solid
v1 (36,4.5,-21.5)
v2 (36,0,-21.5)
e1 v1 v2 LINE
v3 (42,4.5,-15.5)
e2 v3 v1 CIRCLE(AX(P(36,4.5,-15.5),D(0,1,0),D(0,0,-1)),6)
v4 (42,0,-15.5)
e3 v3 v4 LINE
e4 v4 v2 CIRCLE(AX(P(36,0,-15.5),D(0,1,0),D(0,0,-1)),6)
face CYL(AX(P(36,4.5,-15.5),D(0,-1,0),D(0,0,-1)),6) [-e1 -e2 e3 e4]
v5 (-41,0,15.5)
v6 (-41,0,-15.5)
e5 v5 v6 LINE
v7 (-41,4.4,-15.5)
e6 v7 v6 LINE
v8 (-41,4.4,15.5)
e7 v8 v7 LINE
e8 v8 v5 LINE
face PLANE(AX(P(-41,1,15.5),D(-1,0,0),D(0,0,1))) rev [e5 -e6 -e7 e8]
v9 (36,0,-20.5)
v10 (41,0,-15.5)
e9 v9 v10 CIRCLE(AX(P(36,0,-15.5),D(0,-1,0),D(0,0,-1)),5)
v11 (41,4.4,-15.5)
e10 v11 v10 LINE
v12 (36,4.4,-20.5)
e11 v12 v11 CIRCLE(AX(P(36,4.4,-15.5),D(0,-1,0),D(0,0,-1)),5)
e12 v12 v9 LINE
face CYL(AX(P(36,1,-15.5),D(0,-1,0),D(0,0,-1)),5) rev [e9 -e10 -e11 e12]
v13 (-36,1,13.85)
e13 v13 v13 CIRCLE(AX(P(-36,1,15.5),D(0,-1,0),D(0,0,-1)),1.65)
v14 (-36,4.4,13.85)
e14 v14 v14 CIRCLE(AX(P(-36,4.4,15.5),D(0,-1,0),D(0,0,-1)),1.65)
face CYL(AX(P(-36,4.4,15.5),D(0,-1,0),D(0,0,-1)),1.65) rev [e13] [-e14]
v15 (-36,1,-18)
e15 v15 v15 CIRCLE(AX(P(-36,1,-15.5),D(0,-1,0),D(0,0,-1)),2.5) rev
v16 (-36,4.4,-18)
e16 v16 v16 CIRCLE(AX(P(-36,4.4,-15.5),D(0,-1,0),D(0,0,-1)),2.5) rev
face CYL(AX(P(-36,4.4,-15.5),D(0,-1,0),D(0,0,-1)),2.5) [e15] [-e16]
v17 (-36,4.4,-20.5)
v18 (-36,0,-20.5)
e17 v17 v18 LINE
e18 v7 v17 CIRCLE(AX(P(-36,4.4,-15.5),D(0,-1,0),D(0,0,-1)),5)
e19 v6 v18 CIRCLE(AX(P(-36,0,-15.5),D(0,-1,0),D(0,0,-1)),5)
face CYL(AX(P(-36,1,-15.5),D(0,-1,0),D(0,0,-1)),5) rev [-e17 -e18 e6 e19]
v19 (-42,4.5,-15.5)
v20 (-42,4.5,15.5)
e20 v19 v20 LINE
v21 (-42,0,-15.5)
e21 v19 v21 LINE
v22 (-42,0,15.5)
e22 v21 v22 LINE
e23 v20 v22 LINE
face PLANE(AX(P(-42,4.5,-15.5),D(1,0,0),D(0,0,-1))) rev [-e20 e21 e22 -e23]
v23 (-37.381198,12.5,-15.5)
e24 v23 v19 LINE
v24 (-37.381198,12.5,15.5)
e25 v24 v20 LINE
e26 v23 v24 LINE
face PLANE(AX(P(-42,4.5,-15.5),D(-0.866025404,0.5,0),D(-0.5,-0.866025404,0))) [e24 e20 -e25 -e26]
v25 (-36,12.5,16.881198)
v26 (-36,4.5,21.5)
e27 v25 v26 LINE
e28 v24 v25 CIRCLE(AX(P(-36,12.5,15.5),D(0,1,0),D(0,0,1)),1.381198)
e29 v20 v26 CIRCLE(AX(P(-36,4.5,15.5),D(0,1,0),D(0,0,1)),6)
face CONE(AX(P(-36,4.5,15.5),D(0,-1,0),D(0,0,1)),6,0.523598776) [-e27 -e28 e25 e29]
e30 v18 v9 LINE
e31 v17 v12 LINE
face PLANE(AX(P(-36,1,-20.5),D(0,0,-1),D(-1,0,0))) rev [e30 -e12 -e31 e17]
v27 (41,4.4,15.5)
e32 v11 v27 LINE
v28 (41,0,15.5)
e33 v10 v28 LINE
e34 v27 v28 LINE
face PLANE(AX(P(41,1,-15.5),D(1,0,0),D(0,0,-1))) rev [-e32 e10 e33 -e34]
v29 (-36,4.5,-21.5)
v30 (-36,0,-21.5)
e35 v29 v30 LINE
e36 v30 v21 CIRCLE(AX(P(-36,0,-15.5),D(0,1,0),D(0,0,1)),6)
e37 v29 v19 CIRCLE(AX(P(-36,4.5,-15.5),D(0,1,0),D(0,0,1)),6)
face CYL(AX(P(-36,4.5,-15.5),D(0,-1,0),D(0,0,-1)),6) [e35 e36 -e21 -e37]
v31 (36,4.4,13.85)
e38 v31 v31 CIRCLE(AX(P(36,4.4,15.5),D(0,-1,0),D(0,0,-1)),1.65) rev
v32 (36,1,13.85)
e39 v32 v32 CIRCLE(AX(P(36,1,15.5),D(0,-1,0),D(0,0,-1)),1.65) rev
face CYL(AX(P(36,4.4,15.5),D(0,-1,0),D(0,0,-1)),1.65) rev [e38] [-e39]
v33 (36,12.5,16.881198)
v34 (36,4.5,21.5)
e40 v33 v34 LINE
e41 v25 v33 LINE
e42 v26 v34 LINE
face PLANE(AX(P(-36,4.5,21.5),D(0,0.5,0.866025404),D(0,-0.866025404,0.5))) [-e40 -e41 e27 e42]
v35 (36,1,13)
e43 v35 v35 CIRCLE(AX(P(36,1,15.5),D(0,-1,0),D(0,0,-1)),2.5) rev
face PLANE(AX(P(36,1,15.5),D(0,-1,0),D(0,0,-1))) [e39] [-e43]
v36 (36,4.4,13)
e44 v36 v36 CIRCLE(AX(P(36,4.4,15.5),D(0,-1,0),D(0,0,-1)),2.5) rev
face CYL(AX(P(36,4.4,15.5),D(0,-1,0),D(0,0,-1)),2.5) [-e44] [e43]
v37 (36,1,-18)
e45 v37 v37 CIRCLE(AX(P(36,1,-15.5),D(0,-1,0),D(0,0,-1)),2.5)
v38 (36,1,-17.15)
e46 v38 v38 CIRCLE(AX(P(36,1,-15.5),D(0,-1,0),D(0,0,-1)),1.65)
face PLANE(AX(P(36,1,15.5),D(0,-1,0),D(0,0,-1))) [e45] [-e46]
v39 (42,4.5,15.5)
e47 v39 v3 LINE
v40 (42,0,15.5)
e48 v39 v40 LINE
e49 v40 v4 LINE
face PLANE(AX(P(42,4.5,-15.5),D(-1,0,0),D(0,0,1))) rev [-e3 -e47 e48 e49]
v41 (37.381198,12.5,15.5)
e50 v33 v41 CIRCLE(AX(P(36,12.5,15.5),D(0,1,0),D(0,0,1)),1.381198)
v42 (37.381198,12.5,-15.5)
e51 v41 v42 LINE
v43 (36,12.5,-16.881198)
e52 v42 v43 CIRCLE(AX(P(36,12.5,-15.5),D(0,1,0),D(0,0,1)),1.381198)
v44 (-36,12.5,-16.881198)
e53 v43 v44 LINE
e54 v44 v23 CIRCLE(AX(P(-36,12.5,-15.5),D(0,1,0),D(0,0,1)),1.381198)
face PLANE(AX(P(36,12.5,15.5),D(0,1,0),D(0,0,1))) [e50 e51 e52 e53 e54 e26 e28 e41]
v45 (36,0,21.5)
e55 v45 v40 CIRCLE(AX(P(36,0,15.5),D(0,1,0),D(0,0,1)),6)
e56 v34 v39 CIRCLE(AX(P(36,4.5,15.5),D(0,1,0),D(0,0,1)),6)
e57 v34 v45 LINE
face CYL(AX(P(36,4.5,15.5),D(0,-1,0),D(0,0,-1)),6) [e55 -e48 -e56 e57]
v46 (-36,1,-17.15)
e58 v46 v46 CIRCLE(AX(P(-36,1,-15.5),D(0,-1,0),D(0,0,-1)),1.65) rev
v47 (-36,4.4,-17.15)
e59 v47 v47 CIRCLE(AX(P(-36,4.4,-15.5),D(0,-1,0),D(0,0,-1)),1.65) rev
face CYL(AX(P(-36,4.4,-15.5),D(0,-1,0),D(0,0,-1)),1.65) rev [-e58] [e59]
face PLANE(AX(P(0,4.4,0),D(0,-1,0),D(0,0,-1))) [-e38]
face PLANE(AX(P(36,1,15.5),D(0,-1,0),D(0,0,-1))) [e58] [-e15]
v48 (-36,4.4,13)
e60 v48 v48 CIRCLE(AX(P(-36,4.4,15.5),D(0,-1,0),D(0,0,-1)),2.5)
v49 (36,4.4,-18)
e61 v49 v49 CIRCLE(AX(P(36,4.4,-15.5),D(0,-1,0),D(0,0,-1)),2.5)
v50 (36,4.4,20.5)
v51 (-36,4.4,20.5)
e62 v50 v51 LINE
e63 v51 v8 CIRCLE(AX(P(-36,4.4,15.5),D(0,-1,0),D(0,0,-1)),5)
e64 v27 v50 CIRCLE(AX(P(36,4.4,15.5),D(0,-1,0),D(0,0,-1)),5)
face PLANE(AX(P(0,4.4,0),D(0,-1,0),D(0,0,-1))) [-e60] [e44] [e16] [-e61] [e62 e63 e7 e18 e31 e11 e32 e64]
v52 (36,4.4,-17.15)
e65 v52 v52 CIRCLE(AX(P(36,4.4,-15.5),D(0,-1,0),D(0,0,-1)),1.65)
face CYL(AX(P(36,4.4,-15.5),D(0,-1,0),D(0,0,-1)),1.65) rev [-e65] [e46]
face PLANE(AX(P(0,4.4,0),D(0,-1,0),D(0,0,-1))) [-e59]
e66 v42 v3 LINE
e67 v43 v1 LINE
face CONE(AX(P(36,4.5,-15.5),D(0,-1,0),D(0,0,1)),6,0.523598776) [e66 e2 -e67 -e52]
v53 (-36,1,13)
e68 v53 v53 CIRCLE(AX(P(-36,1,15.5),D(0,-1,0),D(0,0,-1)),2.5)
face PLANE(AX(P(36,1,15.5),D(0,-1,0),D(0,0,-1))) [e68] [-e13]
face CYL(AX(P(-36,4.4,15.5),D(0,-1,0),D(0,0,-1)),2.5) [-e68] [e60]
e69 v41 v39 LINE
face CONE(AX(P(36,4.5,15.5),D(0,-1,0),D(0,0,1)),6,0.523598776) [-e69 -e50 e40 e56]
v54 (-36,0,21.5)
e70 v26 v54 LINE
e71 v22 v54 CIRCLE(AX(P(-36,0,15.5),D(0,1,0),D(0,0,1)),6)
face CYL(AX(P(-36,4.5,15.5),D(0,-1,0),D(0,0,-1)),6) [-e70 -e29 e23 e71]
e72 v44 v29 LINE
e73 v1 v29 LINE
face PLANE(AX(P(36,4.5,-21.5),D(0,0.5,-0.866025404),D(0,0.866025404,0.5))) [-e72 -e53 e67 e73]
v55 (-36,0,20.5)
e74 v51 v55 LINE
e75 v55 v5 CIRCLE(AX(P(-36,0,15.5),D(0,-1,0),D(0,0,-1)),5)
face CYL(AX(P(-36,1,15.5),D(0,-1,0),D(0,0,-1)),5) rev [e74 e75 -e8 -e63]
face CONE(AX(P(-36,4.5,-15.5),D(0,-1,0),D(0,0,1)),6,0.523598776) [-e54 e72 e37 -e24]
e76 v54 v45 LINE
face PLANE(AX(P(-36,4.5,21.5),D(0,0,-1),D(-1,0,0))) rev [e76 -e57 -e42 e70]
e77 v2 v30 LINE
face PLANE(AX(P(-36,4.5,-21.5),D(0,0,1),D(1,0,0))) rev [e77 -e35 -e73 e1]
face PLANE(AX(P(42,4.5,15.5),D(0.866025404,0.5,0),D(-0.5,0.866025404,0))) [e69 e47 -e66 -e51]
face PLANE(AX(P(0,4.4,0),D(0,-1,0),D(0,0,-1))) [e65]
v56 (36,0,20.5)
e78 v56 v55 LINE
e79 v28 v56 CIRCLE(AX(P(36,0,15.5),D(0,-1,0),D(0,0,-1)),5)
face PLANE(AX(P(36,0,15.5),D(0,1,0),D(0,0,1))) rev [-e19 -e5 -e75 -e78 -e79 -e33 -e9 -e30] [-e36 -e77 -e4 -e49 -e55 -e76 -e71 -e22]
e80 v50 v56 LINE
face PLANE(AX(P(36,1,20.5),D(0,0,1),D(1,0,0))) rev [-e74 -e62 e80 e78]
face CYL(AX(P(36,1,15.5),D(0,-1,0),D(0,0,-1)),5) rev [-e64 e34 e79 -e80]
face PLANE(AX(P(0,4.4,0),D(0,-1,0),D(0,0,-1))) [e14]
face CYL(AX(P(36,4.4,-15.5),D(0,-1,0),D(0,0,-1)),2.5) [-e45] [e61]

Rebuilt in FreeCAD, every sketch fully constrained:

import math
import FreeCAD as App
import Part
import Sketcher

V = App.Vector
Q = App.Units.Quantity

doc = App.newDocument("Part")
params = doc.addObject("Spreadsheet::Sheet", "Params")
for row, (alias, value) in enumerate([
    ("sketch1_radius", "6 mm"),
    ("sketch1_width", "72 mm"),
    ("sketch1_height", "31 mm"),
    ("pad1_length", "4.5 mm"),
    ("sketch2_radius", "5 mm"),
    ("sketch2_width", "72 mm"),
    ("sketch2_height", "31 mm"),
    ("pocket1_length", "1 mm"),
    ("sketch3_diameter", "5 mm"),
    ("sketch3_radius", "5 mm"),
    ("sketch3_diameter2", "3.3 mm"),
    ("sketch3_width", "72 mm"),
    ("sketch3_height", "31 mm"),
    ("pocket2_length", "3.4 mm"),
    ("sketch4_radius", "6 mm"),
    ("sketch4_width", "72 mm"),
    ("sketch4_height", "31 mm"),
    ("pad2_length", "8 mm"),
    ("pad2_taper", "-30 deg"),
], start=1):
    params.set(f"A{row}", alias)
    params.set(f"B{row}", "=" + value)
    params.setAlias(f"B{row}", alias)

body = doc.addObject("PartDesign::Body", "Body")

# Sketch on XZ plane
sketch1 = doc.addObject("Sketcher::SketchObject", "Sketch")
body.addObject(sketch1)
sketch1.AttachmentSupport = (doc.XZ_Plane, [""])
sketch1.MapMode = "FlatFace"
sketch1.addGeometry([
    Part.LineSegment(V(36, -22, 0), V(-36, -22, 0)),  # 0
    Part.ArcOfCircle(Part.Circle(V(-36, -16, 0), V(0, 0, 1), 6), math.radians(180), math.radians(270)),  # 1
    Part.LineSegment(V(-42, -16, 0), V(-42, 16, 0)),  # 2
    Part.ArcOfCircle(Part.Circle(V(-36, 16, 0), V(0, 0, 1), 6), math.radians(90), math.radians(180)),  # 3
    Part.LineSegment(V(-36, 22, 0), V(36, 22, 0)),  # 4
    Part.ArcOfCircle(Part.Circle(V(36, 16, 0), V(0, 0, 1), 6), math.radians(0), math.radians(90)),  # 5
    Part.LineSegment(V(42, 16, 0), V(42, -16, 0)),  # 6
    Part.ArcOfCircle(Part.Circle(V(36, -16, 0), V(0, 0, 1), 6), math.radians(-90), math.radians(0)),  # 7
], False)
sketch1.addConstraint([
    Sketcher.Constraint("Tangent", 0, 2, 1, 2),
    Sketcher.Constraint("Tangent", 1, 1, 2, 1),
    Sketcher.Constraint("Tangent", 2, 2, 3, 2),
    Sketcher.Constraint("Tangent", 3, 1, 4, 1),
    Sketcher.Constraint("Tangent", 4, 2, 5, 2),
    Sketcher.Constraint("Tangent", 5, 1, 6, 1),
    Sketcher.Constraint("Tangent", 6, 2, 7, 2),
    Sketcher.Constraint("Tangent", 7, 1, 0, 1),
    Sketcher.Constraint("Horizontal", 0),
    Sketcher.Constraint("Vertical", 2),
    Sketcher.Constraint("Horizontal", 4),
    Sketcher.Constraint("Vertical", 6),
    Sketcher.Constraint("Equal", 1, 3),
    Sketcher.Constraint("Equal", 3, 5),
    Sketcher.Constraint("Equal", 5, 7),
    Sketcher.Constraint("Symmetric", 1, 3, 5, 3, -1, 1),
    Sketcher.Constraint("Radius", 1, Q("6 mm")),
    Sketcher.Constraint("DistanceX", 0, 2, 0, 1, Q("72 mm")),
    Sketcher.Constraint("DistanceY", 2, 1, 2, 2, Q("31 mm")),
])
sketch1.setExpression("Constraints[16]", "Params.sketch1_radius")
sketch1.setExpression("Constraints[17]", "Params.sketch1_width")
sketch1.setExpression("Constraints[18]", "Params.sketch1_height")
pad1 = doc.addObject("PartDesign::Pad", "Pad")
body.addObject(pad1)
pad1.Profile = sketch1
pad1.setExpression("Length", "Params.pad1_length")
pad1.Reversed = True

# Sketch on XZ plane
sketch2 = doc.addObject("Sketcher::SketchObject", "Sketch001")
body.addObject(sketch2)
sketch2.AttachmentSupport = (doc.XZ_Plane, [""])
sketch2.MapMode = "FlatFace"
sketch2.addGeometry([
    Part.LineSegment(V(36, 20, 0), V(-36, 20, 0)),  # 0
    Part.ArcOfCircle(Part.Circle(V(-36, 16, 0), V(0, 0, 1), 5), math.radians(90), math.radians(180)),  # 1
    Part.LineSegment(V(-41, 16, 0), V(-41, -16, 0)),  # 2
    Part.ArcOfCircle(Part.Circle(V(-36, -16, 0), V(0, 0, 1), 5), math.radians(180), math.radians(270)),  # 3
    Part.LineSegment(V(-36, -20, 0), V(36, -20, 0)),  # 4
    Part.ArcOfCircle(Part.Circle(V(36, -16, 0), V(0, 0, 1), 5), math.radians(-90), math.radians(0)),  # 5
    Part.LineSegment(V(41, -16, 0), V(41, 16, 0)),  # 6
    Part.ArcOfCircle(Part.Circle(V(36, 16, 0), V(0, 0, 1), 5), math.radians(0), math.radians(90)),  # 7
], False)
sketch2.addConstraint([
    Sketcher.Constraint("Tangent", 0, 2, 1, 1),
    Sketcher.Constraint("Tangent", 1, 2, 2, 1),
    Sketcher.Constraint("Tangent", 2, 2, 3, 1),
    Sketcher.Constraint("Tangent", 3, 2, 4, 1),
    Sketcher.Constraint("Tangent", 4, 2, 5, 1),
    Sketcher.Constraint("Tangent", 5, 2, 6, 1),
    Sketcher.Constraint("Tangent", 6, 2, 7, 1),
    Sketcher.Constraint("Tangent", 7, 2, 0, 1),
    Sketcher.Constraint("Horizontal", 0),
    Sketcher.Constraint("Vertical", 2),
    Sketcher.Constraint("Horizontal", 4),
    Sketcher.Constraint("Vertical", 6),
    Sketcher.Constraint("Equal", 1, 3),
    Sketcher.Constraint("Equal", 3, 5),
    Sketcher.Constraint("Equal", 5, 7),
    Sketcher.Constraint("Symmetric", 1, 3, 5, 3, -1, 1),
    Sketcher.Constraint("Radius", 1, Q("5 mm")),
    Sketcher.Constraint("DistanceX", 0, 2, 0, 1, Q("72 mm")),
    Sketcher.Constraint("DistanceY", 2, 2, 2, 1, Q("31 mm")),
])
sketch2.setExpression("Constraints[16]", "Params.sketch2_radius")
sketch2.setExpression("Constraints[17]", "Params.sketch2_width")
sketch2.setExpression("Constraints[18]", "Params.sketch2_height")
pocket1 = doc.addObject("PartDesign::Pocket", "Pocket")
body.addObject(pocket1)
pocket1.Profile = sketch2
pocket1.setExpression("Length", "Params.pocket1_length")

# Sketch on XZ plane
sketch3 = doc.addObject("Sketcher::SketchObject", "Sketch002")
body.addObject(sketch3)
sketch3.AttachmentSupport = (doc.XZ_Plane, [""])
sketch3.MapMode = "FlatFace"
sketch3.AttachmentOffset = App.Placement(V(0, 0, -1), App.Rotation())
sketch3.addGeometry([
    Part.LineSegment(V(41, -15.5, 0), V(41, 15.5, 0)),  # 0
    Part.ArcOfCircle(Part.Circle(V(36, 15.5, 0), V(0, 0, 1), 5), math.radians(0), math.radians(90)),  # 1
    Part.LineSegment(V(36, 20.5, 0), V(-36, 20.5, 0)),  # 2
    Part.ArcOfCircle(Part.Circle(V(-36, 15.5, 0), V(0, 0, 1), 5), math.radians(90), math.radians(180)),  # 3
    Part.LineSegment(V(-41, 15.5, 0), V(-41, -15.5, 0)),  # 4
    Part.ArcOfCircle(Part.Circle(V(-36, -15.5, 0), V(0, 0, 1), 5), math.radians(180), math.radians(270)),  # 5
    Part.LineSegment(V(-36, -20.5, 0), V(36, -20.5, 0)),  # 6
    Part.ArcOfCircle(Part.Circle(V(36, -15.5, 0), V(0, 0, 1), 5), math.radians(-90), math.radians(0)),  # 7
    Part.Circle(V(36, 15.5, 0), V(0, 0, 1), 2.5),  # 8
    Part.Circle(V(-36, 15.5, 0), V(0, 0, 1), 2.5),  # 9
    Part.Circle(V(36, -15.5, 0), V(0, 0, 1), 2.5),  # 10
    Part.Circle(V(-36, -15.5, 0), V(0, 0, 1), 2.5),  # 11
    Part.Circle(V(-36, -15.5, 0), V(0, 0, 1), 1.6),  # 12
    Part.Circle(V(-36, 15.5, 0), V(0, 0, 1), 1.6),  # 13
    Part.Circle(V(36, 15.5, 0), V(0, 0, 1), 1.6),  # 14
    Part.Circle(V(36, -15.5, 0), V(0, 0, 1), 1.6),  # 15
], False)
sketch3.addConstraint([
    Sketcher.Constraint("Tangent", 0, 2, 1, 1),
    Sketcher.Constraint("Tangent", 1, 2, 2, 1),
    Sketcher.Constraint("Tangent", 2, 2, 3, 1),
    Sketcher.Constraint("Tangent", 3, 2, 4, 1),
    Sketcher.Constraint("Tangent", 4, 2, 5, 1),
    Sketcher.Constraint("Tangent", 5, 2, 6, 1),
    Sketcher.Constraint("Tangent", 6, 2, 7, 1),
    Sketcher.Constraint("Tangent", 7, 2, 0, 1),
    Sketcher.Constraint("Vertical", 0),
    Sketcher.Constraint("Horizontal", 2),
    Sketcher.Constraint("Vertical", 4),
    Sketcher.Constraint("Horizontal", 6),
    Sketcher.Constraint("Coincident", 8, 3, 1, 3),
    Sketcher.Constraint("Coincident", 9, 3, 3, 3),
    Sketcher.Constraint("Coincident", 10, 3, 7, 3),
    Sketcher.Constraint("Coincident", 11, 3, 5, 3),
    Sketcher.Constraint("Coincident", 12, 3, 5, 3),
    Sketcher.Constraint("Coincident", 13, 3, 3, 3),
    Sketcher.Constraint("Coincident", 14, 3, 1, 3),
    Sketcher.Constraint("Coincident", 15, 3, 7, 3),
    Sketcher.Constraint("Equal", 1, 3),
    Sketcher.Constraint("Equal", 3, 5),
    Sketcher.Constraint("Equal", 5, 7),
    Sketcher.Constraint("Equal", 8, 9),
    Sketcher.Constraint("Equal", 9, 10),
    Sketcher.Constraint("Equal", 10, 11),
    Sketcher.Constraint("Equal", 12, 13),
    Sketcher.Constraint("Equal", 13, 14),
    Sketcher.Constraint("Equal", 14, 15),
    Sketcher.Constraint("Symmetric", 1, 3, 5, 3, -1, 1),
    Sketcher.Constraint("Diameter", 8, Q("5 mm")),
    Sketcher.Constraint("Radius", 1, Q("5 mm")),
    Sketcher.Constraint("Diameter", 12, Q("3.3 mm")),
    Sketcher.Constraint("DistanceX", 2, 2, 2, 1, Q("72 mm")),
    Sketcher.Constraint("DistanceY", 0, 1, 0, 2, Q("31 mm")),
])
sketch3.setExpression("Constraints[30]", "Params.sketch3_diameter")
sketch3.setExpression("Constraints[31]", "Params.sketch3_radius")
sketch3.setExpression("Constraints[32]", "Params.sketch3_diameter2")
sketch3.setExpression("Constraints[33]", "Params.sketch3_width")
sketch3.setExpression("Constraints[34]", "Params.sketch3_height")
pocket2 = doc.addObject("PartDesign::Pocket", "Pocket001")
body.addObject(pocket2)
pocket2.Profile = sketch3
pocket2.setExpression("Length", "Params.pocket2_length")

# Sketch on XZ plane
sketch4 = doc.addObject("Sketcher::SketchObject", "Sketch003")
body.addObject(sketch4)
sketch4.AttachmentSupport = (doc.XZ_Plane, [""])
sketch4.MapMode = "FlatFace"
sketch4.AttachmentOffset = App.Placement(V(0, 0, -4.5), App.Rotation())
sketch4.addGeometry([
    Part.LineSegment(V(42, 16, 0), V(42, -16, 0)),  # 0
    Part.ArcOfCircle(Part.Circle(V(36, -16, 0), V(0, 0, 1), 6), math.radians(-90), math.radians(0)),  # 1
    Part.LineSegment(V(36, -22, 0), V(-36, -22, 0)),  # 2
    Part.ArcOfCircle(Part.Circle(V(-36, -16, 0), V(0, 0, 1), 6), math.radians(180), math.radians(270)),  # 3
    Part.LineSegment(V(-42, -16, 0), V(-42, 16, 0)),  # 4
    Part.ArcOfCircle(Part.Circle(V(-36, 16, 0), V(0, 0, 1), 6), math.radians(90), math.radians(180)),  # 5
    Part.LineSegment(V(-36, 22, 0), V(36, 22, 0)),  # 6
    Part.ArcOfCircle(Part.Circle(V(36, 16, 0), V(0, 0, 1), 6), math.radians(0), math.radians(90)),  # 7
], False)
sketch4.addConstraint([
    Sketcher.Constraint("Tangent", 0, 2, 1, 2),
    Sketcher.Constraint("Tangent", 1, 1, 2, 1),
    Sketcher.Constraint("Tangent", 2, 2, 3, 2),
    Sketcher.Constraint("Tangent", 3, 1, 4, 1),
    Sketcher.Constraint("Tangent", 4, 2, 5, 2),
    Sketcher.Constraint("Tangent", 5, 1, 6, 1),
    Sketcher.Constraint("Tangent", 6, 2, 7, 2),
    Sketcher.Constraint("Tangent", 7, 1, 0, 1),
    Sketcher.Constraint("Vertical", 0),
    Sketcher.Constraint("Horizontal", 2),
    Sketcher.Constraint("Vertical", 4),
    Sketcher.Constraint("Horizontal", 6),
    Sketcher.Constraint("Equal", 1, 3),
    Sketcher.Constraint("Equal", 3, 5),
    Sketcher.Constraint("Equal", 5, 7),
    Sketcher.Constraint("Symmetric", 1, 3, 5, 3, -1, 1),
    Sketcher.Constraint("Radius", 1, Q("6 mm")),
    Sketcher.Constraint("DistanceX", 2, 2, 2, 1, Q("72 mm")),
    Sketcher.Constraint("DistanceY", 0, 2, 0, 1, Q("31 mm")),
])
sketch4.setExpression("Constraints[16]", "Params.sketch4_radius")
sketch4.setExpression("Constraints[17]", "Params.sketch4_width")
sketch4.setExpression("Constraints[18]", "Params.sketch4_height")
pad2 = doc.addObject("PartDesign::Pad", "Pad001")
body.addObject(pad2)
pad2.Profile = sketch4
pad2.setExpression("Length", "Params.pad2_length")
pad2.Reversed = True
pad2.setExpression("TaperAngle", "Params.pad2_taper")

doc.recompute()
